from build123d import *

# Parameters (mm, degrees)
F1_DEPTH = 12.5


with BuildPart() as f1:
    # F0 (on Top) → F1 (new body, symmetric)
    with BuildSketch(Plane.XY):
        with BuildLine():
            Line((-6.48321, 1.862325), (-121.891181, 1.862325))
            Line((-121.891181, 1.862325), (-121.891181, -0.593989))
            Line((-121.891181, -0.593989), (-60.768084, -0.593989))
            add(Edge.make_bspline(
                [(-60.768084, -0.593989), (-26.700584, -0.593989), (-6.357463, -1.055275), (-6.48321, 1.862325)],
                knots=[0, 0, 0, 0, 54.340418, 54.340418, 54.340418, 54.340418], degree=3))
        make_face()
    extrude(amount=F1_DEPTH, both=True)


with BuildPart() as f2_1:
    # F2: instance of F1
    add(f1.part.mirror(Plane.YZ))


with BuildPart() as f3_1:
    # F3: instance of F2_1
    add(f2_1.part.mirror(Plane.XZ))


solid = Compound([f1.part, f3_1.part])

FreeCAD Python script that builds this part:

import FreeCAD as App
import Part
import Sketcher

doc = App.newDocument("Part")
body = doc.addObject("PartDesign::Body", "Body")

# Sketch on XY plane
sketch1 = body.newObject("Sketcher::SketchObject", "Sketch")
sketch1.AttachmentSupport = (doc.getObject("XY_Plane"), [""])
sketch1.MapMode = "FlatFace"
sketch1.addGeometry([
    Part.LineSegment(App.Vector(-6.48321, 1.862325, 0), App.Vector(-121.891181, 1.862325, 0)),
    Part.LineSegment(App.Vector(-121.891181, 1.862325, 0), App.Vector(-121.891181, -0.593989, 0)),
    Part.LineSegment(App.Vector(-121.891181, -0.593989, 0), App.Vector(-60.768084, -0.593989, 0)),
    Part.BSplineCurve([App.Vector(-60.768084, -0.593989, 0), App.Vector(-26.700584, -0.593989, 0), App.Vector(-6.357463, -1.055275, 0), App.Vector(-6.48321, 1.862325, 0)], [4, 4], [0, 54.340418], False, 3, [1, 1, 1, 1], False),
], False)
sketch1.addConstraint([
    Sketcher.Constraint("Block", 3),
    Sketcher.Constraint("Coincident", 0, 2, 1, 1),
    Sketcher.Constraint("Coincident", 1, 2, 2, 1),
    Sketcher.Constraint("Coincident", 2, 2, 3, 1),
    Sketcher.Constraint("Coincident", 3, 2, 0, 1),
    Sketcher.Constraint("Horizontal", 0),
    Sketcher.Constraint("Vertical", 1),
    Sketcher.Constraint("Horizontal", 2),
    Sketcher.Constraint("DistanceX", 0, 2, 0, 1, 115.407971),
])
pad1 = body.newObject("PartDesign::Pad", "Pad")
pad1.Profile = sketch1
pad1.Length = 25
pad1.Midplane = True
body2 = doc.addObject("PartDesign::Body", "Body001")
doc.recompute()

mirroring = doc.addObject("Part::Mirroring", "Mirroring")
mirroring.Source = body
mirroring.Base = App.Vector(0, 0, 0)
mirroring.Normal = App.Vector(1, 0, 0)
body2.BaseFeature = mirroring
doc.recompute()
body3 = doc.addObject("PartDesign::Body", "Body002")
doc.recompute()

mirroring2 = doc.addObject("Part::Mirroring", "Mirroring001")
mirroring2.Source = body2
mirroring2.Base = App.Vector(0, 0, 0)
mirroring2.Normal = App.Vector(0, -1, 0)
body3.BaseFeature = mirroring2
doc.recompute()
body2.Visibility = False
mirroring.Visibility = False
mirroring2.Visibility = False

doc.recompute()
